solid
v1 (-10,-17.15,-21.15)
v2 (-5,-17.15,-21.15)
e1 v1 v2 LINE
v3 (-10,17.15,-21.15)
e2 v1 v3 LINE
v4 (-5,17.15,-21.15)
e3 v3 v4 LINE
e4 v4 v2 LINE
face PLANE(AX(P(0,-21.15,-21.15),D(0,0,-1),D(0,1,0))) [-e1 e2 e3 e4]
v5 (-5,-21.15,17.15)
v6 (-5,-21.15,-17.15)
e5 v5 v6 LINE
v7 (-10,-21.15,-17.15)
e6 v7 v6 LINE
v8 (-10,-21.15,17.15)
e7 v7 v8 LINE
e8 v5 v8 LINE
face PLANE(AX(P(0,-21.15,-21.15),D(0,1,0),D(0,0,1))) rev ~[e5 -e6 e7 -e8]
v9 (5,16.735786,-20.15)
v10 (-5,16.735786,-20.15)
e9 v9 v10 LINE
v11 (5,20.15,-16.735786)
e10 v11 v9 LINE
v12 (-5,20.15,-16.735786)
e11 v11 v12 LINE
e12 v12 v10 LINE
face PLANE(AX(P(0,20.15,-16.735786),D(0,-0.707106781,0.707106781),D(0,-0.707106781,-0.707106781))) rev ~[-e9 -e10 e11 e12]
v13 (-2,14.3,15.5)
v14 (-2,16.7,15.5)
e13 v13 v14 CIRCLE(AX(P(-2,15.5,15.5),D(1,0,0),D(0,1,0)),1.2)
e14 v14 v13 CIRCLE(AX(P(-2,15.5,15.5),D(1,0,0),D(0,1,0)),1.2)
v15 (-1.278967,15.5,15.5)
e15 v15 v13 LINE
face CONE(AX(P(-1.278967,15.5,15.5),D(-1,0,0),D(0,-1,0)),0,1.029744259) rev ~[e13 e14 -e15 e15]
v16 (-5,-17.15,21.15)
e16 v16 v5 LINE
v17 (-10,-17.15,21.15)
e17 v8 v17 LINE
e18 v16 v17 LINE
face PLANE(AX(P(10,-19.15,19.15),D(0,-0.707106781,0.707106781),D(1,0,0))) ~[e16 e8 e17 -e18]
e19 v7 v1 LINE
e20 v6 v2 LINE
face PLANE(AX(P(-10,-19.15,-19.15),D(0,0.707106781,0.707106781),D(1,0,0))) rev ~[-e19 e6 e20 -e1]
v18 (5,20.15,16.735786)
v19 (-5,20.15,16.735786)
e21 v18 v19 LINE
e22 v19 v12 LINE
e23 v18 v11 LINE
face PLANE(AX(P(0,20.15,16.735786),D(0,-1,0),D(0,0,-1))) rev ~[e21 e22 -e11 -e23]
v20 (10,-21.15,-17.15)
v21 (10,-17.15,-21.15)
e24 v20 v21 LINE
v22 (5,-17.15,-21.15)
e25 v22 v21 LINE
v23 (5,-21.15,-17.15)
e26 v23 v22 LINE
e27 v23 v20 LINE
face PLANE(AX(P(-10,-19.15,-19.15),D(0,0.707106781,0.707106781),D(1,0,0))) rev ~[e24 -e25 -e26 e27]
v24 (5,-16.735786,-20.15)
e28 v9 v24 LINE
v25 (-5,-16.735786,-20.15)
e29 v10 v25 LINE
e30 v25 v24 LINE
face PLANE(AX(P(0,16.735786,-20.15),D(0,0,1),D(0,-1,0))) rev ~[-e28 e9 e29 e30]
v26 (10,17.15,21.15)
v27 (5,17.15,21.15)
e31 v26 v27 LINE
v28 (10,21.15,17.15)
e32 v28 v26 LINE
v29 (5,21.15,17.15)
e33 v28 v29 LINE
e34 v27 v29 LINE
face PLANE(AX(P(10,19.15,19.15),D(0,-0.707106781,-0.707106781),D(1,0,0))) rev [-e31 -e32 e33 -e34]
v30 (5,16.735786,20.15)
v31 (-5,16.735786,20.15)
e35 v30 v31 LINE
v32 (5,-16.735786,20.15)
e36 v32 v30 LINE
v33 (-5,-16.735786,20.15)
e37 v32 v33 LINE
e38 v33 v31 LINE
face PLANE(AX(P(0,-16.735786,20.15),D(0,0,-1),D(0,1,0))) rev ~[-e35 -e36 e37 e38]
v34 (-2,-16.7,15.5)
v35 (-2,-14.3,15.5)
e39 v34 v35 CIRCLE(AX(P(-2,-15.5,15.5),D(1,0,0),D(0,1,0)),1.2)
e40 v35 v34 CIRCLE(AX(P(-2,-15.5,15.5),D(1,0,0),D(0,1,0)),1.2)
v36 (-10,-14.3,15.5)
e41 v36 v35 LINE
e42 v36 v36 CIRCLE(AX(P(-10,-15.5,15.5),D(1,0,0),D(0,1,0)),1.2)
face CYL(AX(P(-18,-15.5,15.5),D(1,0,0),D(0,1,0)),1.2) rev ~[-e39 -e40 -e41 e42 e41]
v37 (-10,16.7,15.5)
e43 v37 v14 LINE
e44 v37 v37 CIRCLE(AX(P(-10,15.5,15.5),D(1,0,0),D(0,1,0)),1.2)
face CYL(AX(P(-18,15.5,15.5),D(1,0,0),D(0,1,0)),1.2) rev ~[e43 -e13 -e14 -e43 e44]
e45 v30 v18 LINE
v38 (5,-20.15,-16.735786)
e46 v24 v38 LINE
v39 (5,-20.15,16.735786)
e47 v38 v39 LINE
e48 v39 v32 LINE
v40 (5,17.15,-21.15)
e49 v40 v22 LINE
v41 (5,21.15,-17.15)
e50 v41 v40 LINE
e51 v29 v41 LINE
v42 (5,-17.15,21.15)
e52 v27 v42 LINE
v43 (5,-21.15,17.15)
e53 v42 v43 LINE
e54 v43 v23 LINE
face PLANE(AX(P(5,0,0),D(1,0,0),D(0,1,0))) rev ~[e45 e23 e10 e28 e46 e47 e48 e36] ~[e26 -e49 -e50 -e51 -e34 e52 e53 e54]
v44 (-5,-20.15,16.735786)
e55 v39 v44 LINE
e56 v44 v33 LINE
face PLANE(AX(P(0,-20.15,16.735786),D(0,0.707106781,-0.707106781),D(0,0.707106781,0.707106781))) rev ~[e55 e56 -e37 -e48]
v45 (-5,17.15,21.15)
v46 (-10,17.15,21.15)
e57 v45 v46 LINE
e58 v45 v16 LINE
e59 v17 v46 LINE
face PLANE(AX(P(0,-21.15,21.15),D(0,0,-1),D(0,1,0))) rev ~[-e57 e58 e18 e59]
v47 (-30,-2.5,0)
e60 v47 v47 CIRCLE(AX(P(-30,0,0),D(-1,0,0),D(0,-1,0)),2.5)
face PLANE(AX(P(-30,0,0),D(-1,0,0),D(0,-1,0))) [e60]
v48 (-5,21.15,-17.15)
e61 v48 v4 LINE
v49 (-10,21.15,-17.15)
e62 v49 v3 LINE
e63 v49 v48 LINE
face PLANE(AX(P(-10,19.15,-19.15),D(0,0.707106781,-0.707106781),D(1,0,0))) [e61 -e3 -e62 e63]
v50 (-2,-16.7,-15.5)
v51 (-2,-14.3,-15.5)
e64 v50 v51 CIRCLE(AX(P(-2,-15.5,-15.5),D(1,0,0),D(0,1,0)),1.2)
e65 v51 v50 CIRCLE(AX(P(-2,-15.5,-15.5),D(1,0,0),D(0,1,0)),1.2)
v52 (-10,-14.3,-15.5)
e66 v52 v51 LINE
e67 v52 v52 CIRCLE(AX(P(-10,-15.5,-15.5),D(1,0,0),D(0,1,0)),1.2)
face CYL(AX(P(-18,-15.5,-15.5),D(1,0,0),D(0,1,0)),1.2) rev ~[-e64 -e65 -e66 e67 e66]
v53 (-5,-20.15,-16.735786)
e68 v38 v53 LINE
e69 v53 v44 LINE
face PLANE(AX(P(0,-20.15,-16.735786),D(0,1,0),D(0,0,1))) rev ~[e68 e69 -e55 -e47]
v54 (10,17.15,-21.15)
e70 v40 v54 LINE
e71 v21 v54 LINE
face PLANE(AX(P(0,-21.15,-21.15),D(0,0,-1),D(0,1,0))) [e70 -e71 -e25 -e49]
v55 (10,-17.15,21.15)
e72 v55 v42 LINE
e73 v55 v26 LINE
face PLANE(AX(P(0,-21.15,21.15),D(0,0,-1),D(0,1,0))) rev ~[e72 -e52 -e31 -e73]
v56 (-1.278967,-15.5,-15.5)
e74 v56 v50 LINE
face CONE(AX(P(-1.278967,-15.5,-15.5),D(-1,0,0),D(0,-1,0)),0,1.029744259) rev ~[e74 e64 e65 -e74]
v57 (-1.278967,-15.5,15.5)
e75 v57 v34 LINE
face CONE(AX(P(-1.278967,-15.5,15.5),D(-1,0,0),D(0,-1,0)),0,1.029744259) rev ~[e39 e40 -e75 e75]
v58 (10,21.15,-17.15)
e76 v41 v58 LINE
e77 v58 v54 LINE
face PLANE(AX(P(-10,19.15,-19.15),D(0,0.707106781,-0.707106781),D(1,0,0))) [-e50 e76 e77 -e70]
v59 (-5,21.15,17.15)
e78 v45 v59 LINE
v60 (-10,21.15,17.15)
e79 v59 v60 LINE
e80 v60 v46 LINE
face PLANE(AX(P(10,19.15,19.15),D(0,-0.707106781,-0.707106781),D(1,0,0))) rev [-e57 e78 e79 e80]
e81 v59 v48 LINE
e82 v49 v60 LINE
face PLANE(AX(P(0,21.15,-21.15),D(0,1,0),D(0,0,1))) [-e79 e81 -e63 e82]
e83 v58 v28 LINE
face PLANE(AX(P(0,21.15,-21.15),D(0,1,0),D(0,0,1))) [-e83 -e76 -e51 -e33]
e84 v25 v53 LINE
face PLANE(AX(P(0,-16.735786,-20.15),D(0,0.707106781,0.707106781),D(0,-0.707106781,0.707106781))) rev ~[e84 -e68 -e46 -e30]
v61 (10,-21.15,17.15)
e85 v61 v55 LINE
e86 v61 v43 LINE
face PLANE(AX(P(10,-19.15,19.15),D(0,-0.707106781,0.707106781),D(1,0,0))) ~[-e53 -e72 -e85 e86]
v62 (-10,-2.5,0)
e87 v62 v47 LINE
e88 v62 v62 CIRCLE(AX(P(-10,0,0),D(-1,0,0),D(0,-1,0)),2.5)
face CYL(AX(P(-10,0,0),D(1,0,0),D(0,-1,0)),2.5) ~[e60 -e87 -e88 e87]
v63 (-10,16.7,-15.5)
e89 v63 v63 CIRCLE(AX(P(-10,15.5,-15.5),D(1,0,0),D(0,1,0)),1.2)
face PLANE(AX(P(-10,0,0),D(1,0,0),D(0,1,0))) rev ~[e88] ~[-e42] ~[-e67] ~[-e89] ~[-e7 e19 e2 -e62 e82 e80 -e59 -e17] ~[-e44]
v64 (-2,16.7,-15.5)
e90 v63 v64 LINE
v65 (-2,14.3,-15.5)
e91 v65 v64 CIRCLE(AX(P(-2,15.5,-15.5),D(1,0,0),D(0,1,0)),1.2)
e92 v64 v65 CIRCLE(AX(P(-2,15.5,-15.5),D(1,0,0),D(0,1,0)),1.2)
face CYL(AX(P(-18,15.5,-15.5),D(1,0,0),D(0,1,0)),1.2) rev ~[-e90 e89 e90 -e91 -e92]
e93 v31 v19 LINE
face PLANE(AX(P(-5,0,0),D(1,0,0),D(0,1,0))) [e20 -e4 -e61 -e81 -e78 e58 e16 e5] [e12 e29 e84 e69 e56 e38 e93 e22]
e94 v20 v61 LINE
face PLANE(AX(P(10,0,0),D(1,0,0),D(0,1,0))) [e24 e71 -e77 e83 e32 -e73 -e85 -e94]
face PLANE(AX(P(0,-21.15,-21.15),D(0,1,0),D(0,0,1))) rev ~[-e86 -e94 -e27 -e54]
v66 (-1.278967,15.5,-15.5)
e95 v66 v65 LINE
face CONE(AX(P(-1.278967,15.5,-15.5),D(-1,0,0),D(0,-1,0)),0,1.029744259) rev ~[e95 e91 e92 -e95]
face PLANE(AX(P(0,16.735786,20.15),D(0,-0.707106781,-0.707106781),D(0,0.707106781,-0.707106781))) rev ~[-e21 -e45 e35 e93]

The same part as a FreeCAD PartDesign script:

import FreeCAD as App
import Part
import Sketcher
from FreeCAD import Vector


def edges_at(feature, points):
    """Names of the edges that pass closest to the given points."""
    edges = feature.Shape.Edges
    near = lambda p: min(range(len(edges)), key=lambda i: edges[i].distToShape(Part.Vertex(*p))[0])
    return sorted({f"Edge{near(p) + 1}" for p in points})


def add_polygon(sketch, points):
    """Adds a closed chain of lines whose ends are joined by coincident constraints."""
    first, n = sketch.GeometryCount, len(points)
    for a, b in zip(points, points[1:] + points[:1]):
        sketch.addGeometry(Part.LineSegment(App.Vector(*a, 0), App.Vector(*b, 0)), False)
    for i in range(n):
        sketch.addConstraint(Sketcher.Constraint("Coincident", first + i, 2, first + (i + 1) % n, 1))

doc = App.newDocument("Part")
params = doc.addObject("Spreadsheet::Sheet", "Params")
for row, (alias, value) in enumerate([
    ("sketch1_width", "42.3 mm"),
    ("pad1_length", "20 mm"),
    ("chamfer_size", "4 mm"),
    ("sketch2_width", "43 mm"),
    ("pocket1_length", "10 mm"),
    ("sketch3_diameter", "5 mm"),
    ("pad2_length", "20 mm"),
    ("sketch4_diameter", "2.4 mm"),
    ("hole_diameter", "2.4 mm"),
    ("hole_depth", "8 mm"),
], start=1):
    params.set(f"A{row}", alias)
    params.set(f"B{row}", "=" + value)
    params.setAlias(f"B{row}", alias)

body = doc.addObject("PartDesign::Body", "Body")

sketch1 = doc.addObject("Sketcher::SketchObject", "Sketch")
body.addObject(sketch1)
sketch1.AttachmentSupport = (doc.YZ_Plane, [""])
sketch1.MapMode = "FlatFace"
add_polygon(sketch1, [(-21, 21), (-21, -21), (21, -21), (21, 21)])
sketch1.addConstraint([
    Sketcher.Constraint("Vertical", 0),
    Sketcher.Constraint("Horizontal", 1),
    Sketcher.Constraint("Vertical", 2),
    Sketcher.Constraint("Horizontal", 3),
    Sketcher.Constraint("Symmetric", 0, 2, 2, 2, -1, 1),
    Sketcher.Constraint("Equal", 3, 0),
    Sketcher.Constraint("DistanceX", 1, 1, 1, 2, 42.3),
])
sketch1.setExpression("Constraints[10]", "Params.sketch1_width")
pad1 = doc.addObject("PartDesign::Pad", "Pad")
body.addObject(pad1)
pad1.Profile = sketch1
pad1.setExpression("Length", "Params.pad1_length")
pad1.Midplane = True
doc.recompute()

chamfer = doc.addObject("PartDesign::Chamfer", "Chamfer")
body.addObject(chamfer)
chamfer.Base = (pad1, edges_at(pad1, [
    (0, -21.15, 21.15),
    (0, 21.15, 21.15),
    (0, -21.15, -21.15),
    (0, 21.15, -21.15),
]))
chamfer.setExpression("Size", "Params.chamfer_size")

sketch2 = doc.addObject("Sketcher::SketchObject", "Sketch001")
body.addObject(sketch2)
sketch2.AttachmentSupport = (doc.YZ_Plane, [""])
sketch2.MapMode = "FlatFace"
add_polygon(sketch2, [(-21.5, 21.5), (-21.5, -21.5), (21.5, -21.5), (21.5, 21.5)])
add_polygon(sketch2, [(16.7, -20.1), (-16.7, -20.1), (-20.1, -16.7), (-20.1, 16.7), (-16.7, 20.1), (16.7, 20.1), (20.1, 16.7), (20.1, -16.7)])
sketch2.addConstraint([
    Sketcher.Constraint("Vertical", 0),
    Sketcher.Constraint("Horizontal", 1),
    Sketcher.Constraint("Vertical", 2),
    Sketcher.Constraint("Horizontal", 3),
    Sketcher.Constraint("Horizontal", 4),
    Sketcher.Constraint("Vertical", 6),
    Sketcher.Constraint("Horizontal", 8),
    Sketcher.Constraint("Vertical", 10),
    Sketcher.Constraint("Symmetric", 0, 2, 2, 2, -1, 1),
    Sketcher.Constraint("Symmetric", 4, 2, 8, 2, -1, 1),
    Sketcher.Constraint("Symmetric", 5, 2, 9, 2, -1, 1),
    Sketcher.Constraint("Perpendicular", 5, 7),
    Sketcher.Constraint("Perpendicular", 9, 11),
    Sketcher.Constraint("Horizontal", 6, 2, 9, 2),
    Sketcher.Constraint("Horizontal", 5, 2, 10, 2),
    Sketcher.Constraint("Vertical", 4, 2, 7, 2),
    Sketcher.Constraint("Equal", 3, 0),
    Sketcher.Constraint("Equal", 8, 6),
    Sketcher.Constraint("DistanceX", 1, 1, 1, 2, 43.0),
    Sketcher.Constraint("DistanceY", 4, 2, 7, 2, 40.3),
    Sketcher.Constraint("DistanceX", 4, 2, 4, 1, 33.471573),
])
sketch2.setExpression("Constraints[30]", "Params.sketch2_width")
pocket1 = doc.addObject("PartDesign::Pocket", "Pocket")
body.addObject(pocket1)
pocket1.Profile = sketch2
pocket1.setExpression("Length", "Params.pocket1_length")
pocket1.Midplane = True

sketch3 = doc.addObject("Sketcher::SketchObject", "Sketch002")
body.addObject(sketch3)
sketch3.AttachmentSupport = (doc.YZ_Plane, [""])
sketch3.MapMode = "FlatFace"
sketch3.AttachmentOffset = App.Placement(Vector(0, 0, -10), App.Rotation())
sketch3.addGeometry(Part.Circle(Vector(0, 0, 0), Vector(0, 0, 1), 2.5), False)
sketch3.addConstraint([
    Sketcher.Constraint("Coincident", 0, 3, -1, 1),
    Sketcher.Constraint("Diameter", 0, 5.0),
])
sketch3.setExpression("Constraints[1]", "Params.sketch3_diameter")
pad2 = doc.addObject("PartDesign::Pad", "Pad001")
body.addObject(pad2)
pad2.Profile = sketch3
pad2.setExpression("Length", "Params.pad2_length")
pad2.Reversed = True

sketch4 = doc.addObject("Sketcher::SketchObject", "Sketch003")
body.addObject(sketch4)
sketch4.AttachmentSupport = (doc.YZ_Plane, [""])
sketch4.MapMode = "FlatFace"
sketch4.AttachmentOffset = App.Placement(Vector(0, 0, -10), App.Rotation())
sketch4.addGeometry([
    Part.Circle(Vector(15.5, 15.5, 0), Vector(0, 0, 1), 1.2),
    Part.Circle(Vector(-15.5, 15.5, 0), Vector(0, 0, 1), 1.2),
    Part.Circle(Vector(15.5, -15.5, 0), Vector(0, 0, 1), 1.2),
    Part.Circle(Vector(-15.5, -15.5, 0), Vector(0, 0, 1), 1.2),
], False)
sketch4.addConstraint([
    Sketcher.Constraint("Equal", 0, 1),
    Sketcher.Constraint("Equal", 1, 2),
    Sketcher.Constraint("Equal", 2, 3),
    Sketcher.Constraint("Symmetric", 1, 3, 2, 3, -1, 1),
    Sketcher.Constraint("Symmetric", 0, 3, 3, 3, -1, 1),
    Sketcher.Constraint("Symmetric", 0, 3, 1, 3, -2),
    Sketcher.Constraint("Diameter", 0, 2.4),
    Sketcher.Constraint("DistanceX", 1, 3, 0, 3, 31.0),
    Sketcher.Constraint("DistanceY", 2, 3, 0, 3, 31.0),
])
sketch4.setExpression("Constraints[6]", "Params.sketch4_diameter")
doc.recompute()
hole = doc.addObject("PartDesign::Hole", "Hole")
body.addObject(hole)
hole.Profile = sketch4
hole.ThreadType = "None"
hole.setExpression("Diameter", "Params.hole_diameter")
hole.DepthType = "Dimension"
hole.setExpression("Depth", "Params.hole_depth")
hole.DrillPoint = "Angled"
hole.DrillPointAngle = 118
hole.Reversed = True

doc.recompute()
